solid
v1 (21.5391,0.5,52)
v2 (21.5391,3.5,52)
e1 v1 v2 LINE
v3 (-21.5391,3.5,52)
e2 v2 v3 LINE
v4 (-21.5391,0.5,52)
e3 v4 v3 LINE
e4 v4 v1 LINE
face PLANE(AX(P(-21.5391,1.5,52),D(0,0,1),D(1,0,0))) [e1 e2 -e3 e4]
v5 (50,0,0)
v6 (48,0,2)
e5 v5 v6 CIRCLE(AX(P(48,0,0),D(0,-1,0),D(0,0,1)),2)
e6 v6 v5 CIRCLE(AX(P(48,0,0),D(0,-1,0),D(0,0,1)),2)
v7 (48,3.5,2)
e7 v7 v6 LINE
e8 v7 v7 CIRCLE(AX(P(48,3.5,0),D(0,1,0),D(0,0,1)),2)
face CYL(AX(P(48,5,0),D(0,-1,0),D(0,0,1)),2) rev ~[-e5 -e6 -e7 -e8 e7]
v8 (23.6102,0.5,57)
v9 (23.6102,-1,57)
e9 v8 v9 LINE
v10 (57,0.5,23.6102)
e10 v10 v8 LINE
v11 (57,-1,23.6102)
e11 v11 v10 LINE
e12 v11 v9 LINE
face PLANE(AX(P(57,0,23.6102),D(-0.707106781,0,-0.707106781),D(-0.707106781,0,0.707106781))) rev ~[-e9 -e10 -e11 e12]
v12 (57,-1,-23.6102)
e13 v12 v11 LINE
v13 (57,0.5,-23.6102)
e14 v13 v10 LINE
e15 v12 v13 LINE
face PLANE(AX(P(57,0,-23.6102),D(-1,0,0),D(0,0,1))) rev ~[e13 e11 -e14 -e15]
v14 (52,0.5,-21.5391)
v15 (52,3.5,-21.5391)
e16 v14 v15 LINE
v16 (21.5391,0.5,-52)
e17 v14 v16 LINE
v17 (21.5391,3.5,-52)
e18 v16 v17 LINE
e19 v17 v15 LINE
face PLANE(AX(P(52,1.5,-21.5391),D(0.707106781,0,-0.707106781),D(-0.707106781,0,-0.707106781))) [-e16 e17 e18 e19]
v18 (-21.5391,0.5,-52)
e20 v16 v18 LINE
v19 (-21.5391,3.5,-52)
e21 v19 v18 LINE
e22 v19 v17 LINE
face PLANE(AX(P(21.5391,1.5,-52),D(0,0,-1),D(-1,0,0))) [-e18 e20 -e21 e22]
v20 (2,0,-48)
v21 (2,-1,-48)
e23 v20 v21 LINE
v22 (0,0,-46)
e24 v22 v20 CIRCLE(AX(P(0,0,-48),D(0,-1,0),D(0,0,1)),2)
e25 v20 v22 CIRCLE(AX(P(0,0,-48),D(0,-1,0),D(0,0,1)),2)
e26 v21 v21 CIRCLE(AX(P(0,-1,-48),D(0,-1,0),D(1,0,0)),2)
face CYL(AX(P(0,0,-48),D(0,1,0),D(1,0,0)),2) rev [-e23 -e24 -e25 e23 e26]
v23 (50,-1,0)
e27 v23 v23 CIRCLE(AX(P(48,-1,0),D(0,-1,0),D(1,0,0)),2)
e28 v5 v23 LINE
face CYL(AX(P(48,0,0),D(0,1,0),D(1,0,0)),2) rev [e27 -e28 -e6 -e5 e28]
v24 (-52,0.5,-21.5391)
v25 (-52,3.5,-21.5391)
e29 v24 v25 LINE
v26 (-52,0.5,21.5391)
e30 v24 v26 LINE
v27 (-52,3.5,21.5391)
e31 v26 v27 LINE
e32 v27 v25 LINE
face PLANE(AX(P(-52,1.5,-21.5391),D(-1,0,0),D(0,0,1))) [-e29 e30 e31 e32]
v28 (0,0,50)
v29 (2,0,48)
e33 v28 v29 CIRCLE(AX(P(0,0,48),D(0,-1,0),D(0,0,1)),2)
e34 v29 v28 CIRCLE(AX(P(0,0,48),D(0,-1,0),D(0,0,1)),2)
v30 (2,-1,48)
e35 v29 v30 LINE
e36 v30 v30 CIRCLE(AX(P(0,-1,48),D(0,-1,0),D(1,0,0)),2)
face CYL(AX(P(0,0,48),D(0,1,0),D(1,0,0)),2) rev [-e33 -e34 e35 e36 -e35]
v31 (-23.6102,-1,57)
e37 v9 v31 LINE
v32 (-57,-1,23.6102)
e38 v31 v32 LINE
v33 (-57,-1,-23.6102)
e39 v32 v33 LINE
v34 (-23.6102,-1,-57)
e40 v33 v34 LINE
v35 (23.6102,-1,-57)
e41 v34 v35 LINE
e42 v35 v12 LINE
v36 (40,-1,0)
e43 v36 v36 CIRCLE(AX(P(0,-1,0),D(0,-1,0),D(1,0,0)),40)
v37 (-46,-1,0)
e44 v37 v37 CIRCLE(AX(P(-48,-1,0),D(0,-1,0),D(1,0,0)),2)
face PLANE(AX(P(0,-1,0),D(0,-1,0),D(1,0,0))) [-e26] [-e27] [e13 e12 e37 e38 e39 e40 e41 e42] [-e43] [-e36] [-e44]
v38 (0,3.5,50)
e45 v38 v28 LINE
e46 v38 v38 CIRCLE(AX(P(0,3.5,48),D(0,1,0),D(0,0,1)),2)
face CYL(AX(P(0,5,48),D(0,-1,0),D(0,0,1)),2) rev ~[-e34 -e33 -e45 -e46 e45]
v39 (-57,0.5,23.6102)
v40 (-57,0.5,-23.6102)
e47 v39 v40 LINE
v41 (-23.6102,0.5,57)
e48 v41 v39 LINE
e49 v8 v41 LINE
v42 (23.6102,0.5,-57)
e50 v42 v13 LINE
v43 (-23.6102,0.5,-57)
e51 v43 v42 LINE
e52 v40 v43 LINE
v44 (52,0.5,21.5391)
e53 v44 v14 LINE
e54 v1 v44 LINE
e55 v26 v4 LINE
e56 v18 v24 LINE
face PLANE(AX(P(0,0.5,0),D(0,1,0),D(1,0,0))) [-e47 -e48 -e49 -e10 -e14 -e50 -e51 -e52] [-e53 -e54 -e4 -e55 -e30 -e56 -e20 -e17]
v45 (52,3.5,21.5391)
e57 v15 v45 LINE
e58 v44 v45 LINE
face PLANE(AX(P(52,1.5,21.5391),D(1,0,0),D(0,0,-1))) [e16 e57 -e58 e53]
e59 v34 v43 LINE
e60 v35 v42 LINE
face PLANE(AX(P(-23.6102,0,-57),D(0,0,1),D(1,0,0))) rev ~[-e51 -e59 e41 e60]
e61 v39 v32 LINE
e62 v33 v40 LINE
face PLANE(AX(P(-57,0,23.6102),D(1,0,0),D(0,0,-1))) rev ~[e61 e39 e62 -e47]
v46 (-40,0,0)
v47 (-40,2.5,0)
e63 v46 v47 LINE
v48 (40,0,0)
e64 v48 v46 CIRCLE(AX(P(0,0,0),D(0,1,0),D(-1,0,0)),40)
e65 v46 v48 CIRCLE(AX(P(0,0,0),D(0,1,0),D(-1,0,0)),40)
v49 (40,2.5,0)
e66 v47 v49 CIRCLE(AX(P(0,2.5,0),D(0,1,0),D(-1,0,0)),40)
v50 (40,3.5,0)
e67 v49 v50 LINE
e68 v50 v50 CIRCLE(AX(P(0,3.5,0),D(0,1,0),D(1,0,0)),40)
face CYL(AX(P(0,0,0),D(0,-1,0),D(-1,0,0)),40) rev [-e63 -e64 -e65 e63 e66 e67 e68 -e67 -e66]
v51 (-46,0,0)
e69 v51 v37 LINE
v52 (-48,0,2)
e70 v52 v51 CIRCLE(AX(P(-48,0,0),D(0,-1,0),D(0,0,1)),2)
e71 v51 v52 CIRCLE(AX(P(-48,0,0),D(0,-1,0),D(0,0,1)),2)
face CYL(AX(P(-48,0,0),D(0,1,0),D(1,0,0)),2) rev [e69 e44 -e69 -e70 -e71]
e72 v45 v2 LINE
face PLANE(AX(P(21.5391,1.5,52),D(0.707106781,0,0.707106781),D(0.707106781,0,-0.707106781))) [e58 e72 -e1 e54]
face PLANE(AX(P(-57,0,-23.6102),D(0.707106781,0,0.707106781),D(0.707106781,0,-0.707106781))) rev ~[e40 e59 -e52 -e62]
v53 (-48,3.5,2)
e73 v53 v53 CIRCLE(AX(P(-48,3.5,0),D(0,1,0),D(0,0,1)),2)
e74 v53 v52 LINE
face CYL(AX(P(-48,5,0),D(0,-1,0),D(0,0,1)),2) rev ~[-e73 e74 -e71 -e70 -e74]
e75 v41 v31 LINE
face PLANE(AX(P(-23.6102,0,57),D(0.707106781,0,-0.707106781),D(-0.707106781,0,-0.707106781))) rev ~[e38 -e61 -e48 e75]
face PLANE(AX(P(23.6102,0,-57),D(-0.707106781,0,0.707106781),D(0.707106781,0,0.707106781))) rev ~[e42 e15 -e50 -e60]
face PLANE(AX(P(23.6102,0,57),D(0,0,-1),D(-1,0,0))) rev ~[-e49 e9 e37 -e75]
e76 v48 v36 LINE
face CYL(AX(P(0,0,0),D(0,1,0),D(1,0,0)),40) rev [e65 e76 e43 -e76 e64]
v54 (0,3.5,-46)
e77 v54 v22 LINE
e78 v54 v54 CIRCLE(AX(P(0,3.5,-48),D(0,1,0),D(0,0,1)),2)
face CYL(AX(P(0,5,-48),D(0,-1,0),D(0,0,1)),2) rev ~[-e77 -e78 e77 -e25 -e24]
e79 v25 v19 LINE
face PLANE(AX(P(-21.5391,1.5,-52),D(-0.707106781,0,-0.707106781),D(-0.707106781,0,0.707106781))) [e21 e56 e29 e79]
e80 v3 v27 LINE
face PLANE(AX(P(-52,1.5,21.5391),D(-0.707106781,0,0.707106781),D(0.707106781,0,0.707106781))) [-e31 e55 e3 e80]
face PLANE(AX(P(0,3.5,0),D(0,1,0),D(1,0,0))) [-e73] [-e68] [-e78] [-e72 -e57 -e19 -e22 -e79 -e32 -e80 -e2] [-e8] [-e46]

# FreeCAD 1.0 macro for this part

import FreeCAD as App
import Part
import Sketcher

V = App.Vector

doc = App.newDocument("Part")
body = doc.addObject("PartDesign::Body", "Body")

sketch1 = body.newObject("Sketcher::SketchObject", "Sketch")
sketch1.AttachmentSupport = (doc.getObject("XZ_Plane"), [""])
sketch1.MapMode = "FlatFace"
sketch1.addGeometry(Part.LineSegment(V(-23.6102, 57, 0), V(23.6102, 57, 0)), False)
sketch1.addGeometry(Part.LineSegment(V(23.6102, 57, 0), V(57, 23.6102, 0)), False)
sketch1.addGeometry(Part.LineSegment(V(57, 23.6102, 0), V(57, -23.6102, 0)), False)
sketch1.addGeometry(Part.LineSegment(V(57, -23.6102, 0), V(23.6102, -57, 0)), False)
sketch1.addGeometry(Part.LineSegment(V(23.6102, -57, 0), V(-23.6102, -57, 0)), False)
sketch1.addGeometry(Part.LineSegment(V(-23.6102, -57, 0), V(-57, -23.6102, 0)), False)
sketch1.addGeometry(Part.LineSegment(V(-57, -23.6102, 0), V(-57, 23.6102, 0)), False)
sketch1.addGeometry(Part.LineSegment(V(-57, 23.6102, 0), V(-23.6102, 57, 0)), False)
sketch1.addGeometry(Part.Circle(V(0, 0, 0), V(0, 0, 1), 40), False)
sketch1.addConstraint(Sketcher.Constraint("Coincident", 0, 2, 1, 1))
sketch1.addConstraint(Sketcher.Constraint("Coincident", 1, 2, 2, 1))
sketch1.addConstraint(Sketcher.Constraint("Coincident", 2, 2, 3, 1))
sketch1.addConstraint(Sketcher.Constraint("Coincident", 3, 2, 4, 1))
sketch1.addConstraint(Sketcher.Constraint("Coincident", 4, 2, 5, 1))
sketch1.addConstraint(Sketcher.Constraint("Coincident", 5, 2, 6, 1))
sketch1.addConstraint(Sketcher.Constraint("Coincident", 6, 2, 7, 1))
sketch1.addConstraint(Sketcher.Constraint("Coincident", 7, 2, 0, 1))
sketch1.addConstraint(Sketcher.Constraint("Horizontal", 0))
sketch1.addConstraint(Sketcher.Constraint("Vertical", 2))
sketch1.addConstraint(Sketcher.Constraint("Horizontal", 4))
sketch1.addConstraint(Sketcher.Constraint("Vertical", 6))
sketch1.addConstraint(Sketcher.Constraint("Coincident", 8, 3, -1, 1))
sketch1.addConstraint(Sketcher.Constraint("Symmetric", 0, 2, 4, 2, -1, 1))
sketch1.addConstraint(Sketcher.Constraint("Symmetric", 1, 2, 5, 2, -1, 1))
sketch1.addConstraint(Sketcher.Constraint("Perpendicular", 1, 3))
sketch1.addConstraint(Sketcher.Constraint("Perpendicular", 5, 7))
sketch1.addConstraint(Sketcher.Constraint("Horizontal", 2, 2, 5, 2))
sketch1.addConstraint(Sketcher.Constraint("Horizontal", 1, 2, 6, 2))
sketch1.addConstraint(Sketcher.Constraint("Vertical", 0, 2, 3, 2))
sketch1.addConstraint(Sketcher.Constraint("Equal", 4, 2))
sketch1.addConstraint(Sketcher.Constraint("Diameter", 8, 80.0))
sketch1.addConstraint(Sketcher.Constraint("DistanceY", 3, 2, 0, 2, 114.0))
sketch1.addConstraint(Sketcher.Constraint("DistanceX", 0, 1, 0, 2, 47.2204))
pad1 = body.newObject("PartDesign::Pad", "Pad")
pad1.Profile = sketch1
pad1.Length = 2.5
pad1.Reversed = True

sketch2 = body.newObject("Sketcher::SketchObject", "Sketch001")
sketch2.AttachmentSupport = (doc.getObject("XZ_Plane"), [""])
sketch2.MapMode = "FlatFace"
sketch2.AttachmentOffset = App.Placement(V(0, 0, -2.5), App.Rotation())
sketch2.addGeometry(Part.LineSegment(V(-21.5391, -52, 0), V(-52, -21.5391, 0)), False)
sketch2.addGeometry(Part.LineSegment(V(-52, -21.5391, 0), V(-52, 21.5391, 0)), False)
sketch2.addGeometry(Part.LineSegment(V(-52, 21.5391, 0), V(-21.5391, 52, 0)), False)
sketch2.addGeometry(Part.LineSegment(V(-21.5391, 52, 0), V(21.5391, 52, 0)), False)
sketch2.addGeometry(Part.LineSegment(V(21.5391, 52, 0), V(52, 21.5391, 0)), False)
sketch2.addGeometry(Part.LineSegment(V(52, 21.5391, 0), V(52, -21.5391, 0)), False)
sketch2.addGeometry(Part.LineSegment(V(52, -21.5391, 0), V(21.5391, -52, 0)), False)
sketch2.addGeometry(Part.LineSegment(V(21.5391, -52, 0), V(-21.5391, -52, 0)), False)
sketch2.addGeometry(Part.Circle(V(0, 0, 0), V(0, 0, 1), 40), False)
sketch2.addConstraint(Sketcher.Constraint("Coincident", 0, 2, 1, 1))
sketch2.addConstraint(Sketcher.Constraint("Coincident", 1, 2, 2, 1))
sketch2.addConstraint(Sketcher.Constraint("Coincident", 2, 2, 3, 1))
sketch2.addConstraint(Sketcher.Constraint("Coincident", 3, 2, 4, 1))
sketch2.addConstraint(Sketcher.Constraint("Coincident", 4, 2, 5, 1))
sketch2.addConstraint(Sketcher.Constraint("Coincident", 5, 2, 6, 1))
sketch2.addConstraint(Sketcher.Constraint("Coincident", 6, 2, 7, 1))
sketch2.addConstraint(Sketcher.Constraint("Coincident", 7, 2, 0, 1))
sketch2.addConstraint(Sketcher.Constraint("Vertical", 1))
sketch2.addConstraint(Sketcher.Constraint("Horizontal", 3))
sketch2.addConstraint(Sketcher.Constraint("Vertical", 5))
sketch2.addConstraint(Sketcher.Constraint("Horizontal", 7))
sketch2.addConstraint(Sketcher.Constraint("Coincident", 8, 3, -1, 1))
sketch2.addConstraint(Sketcher.Constraint("Symmetric", 0, 2, 4, 2, -1, 1))
sketch2.addConstraint(Sketcher.Constraint("Symmetric", 2, 2, 6, 2, -1, 1))
sketch2.addConstraint(Sketcher.Constraint("Perpendicular", 0, 2))
sketch2.addConstraint(Sketcher.Constraint("Perpendicular", 2, 4))
sketch2.addConstraint(Sketcher.Constraint("Perpendicular", 4, 6))
sketch2.addConstraint(Sketcher.Constraint("Horizontal", 1, 2, 4, 2))
sketch2.addConstraint(Sketcher.Constraint("Vertical", 3, 2, 6, 2))
sketch2.addConstraint(Sketcher.Constraint("Equal", 7, 1))
sketch2.addConstraint(Sketcher.Constraint("Diameter", 8, 80.0))
sketch2.addConstraint(Sketcher.Constraint("DistanceX", 0, 2, -1, 1, 52.0))
sketch2.addConstraint(Sketcher.Constraint("DistanceX", 3, 1, 3, 2, 43.0782))
pad2 = body.newObject("PartDesign::Pad", "Pad001")
pad2.Profile = sketch2
pad2.Length = 2.5
pad2.Reversed = True

sketch3 = body.newObject("Sketcher::SketchObject", "Sketch002")
sketch3.AttachmentSupport = (doc.getObject("XZ_Plane"), [""])
sketch3.MapMode = "FlatFace"
sketch3.AttachmentOffset = App.Placement(V(0, 0, -5), App.Rotation())
sketch3.addGeometry(Part.Circle(V(0, -48, 0), V(0, 0, 1), 2), False)
sketch3.addGeometry(Part.Circle(V(-48, 0, 0), V(0, 0, 1), 2), False)
sketch3.addGeometry(Part.Circle(V(0, 48, 0), V(0, 0, 1), 2), False)
sketch3.addGeometry(Part.Circle(V(48, 0, 0), V(0, 0, 1), 2), False)
sketch3.addConstraint(Sketcher.Constraint("Equal", 0, 1))
sketch3.addConstraint(Sketcher.Constraint("Equal", 1, 2))
sketch3.addConstraint(Sketcher.Constraint("Equal", 2, 3))
sketch3.addConstraint(Sketcher.Constraint("Symmetric", 0, 3, 2, 3, -1, 1))
sketch3.addConstraint(Sketcher.Constraint("Symmetric", 1, 3, 3, 3, -1, 1))
sketch3.addConstraint(Sketcher.Constraint("PointOnObject", 0, 3, -2))
sketch3.addConstraint(Sketcher.Constraint("PointOnObject", 1, 3, -1))
sketch3.addConstraint(Sketcher.Constraint("Diameter", 0, 4.0))
sketch3.addConstraint(Sketcher.Constraint("DistanceY", 0, 3, -1, 1, 48.0))
sketch3.addConstraint(Sketcher.Constraint("DistanceX", 1, 3, -1, 1, 48.0))
doc.recompute()
hole = body.newObject("PartDesign::Hole", "Hole")
hole.Profile = sketch3
hole.ThreadType = "None"
hole.Diameter = 4
hole.DepthType = "ThroughAll"
hole.Reversed = True

sketch4 = body.newObject("Sketcher::SketchObject", "Sketch003")
sketch4.AttachmentSupport = (doc.getObject("XZ_Plane"), [""])
sketch4.MapMode = "FlatFace"
sketch4.AttachmentOffset = App.Placement(V(0, 0, -2.5), App.Rotation())
sketch4.addGeometry(Part.LineSegment(V(-57, 23.6102, 0), V(-23.6102, 57, 0)), False)
sketch4.addGeometry(Part.LineSegment(V(-23.6102, 57, 0), V(23.6102, 57, 0)), False)
sketch4.addGeometry(Part.LineSegment(V(23.6102, 57, 0), V(57, 23.6102, 0)), False)
sketch4.addGeometry(Part.LineSegment(V(57, 23.6102, 0), V(57, -23.6102, 0)), False)
sketch4.addGeometry(Part.LineSegment(V(57, -23.6102, 0), V(23.6102, -57, 0)), False)
sketch4.addGeometry(Part.LineSegment(V(23.6102, -57, 0), V(-23.6102, -57, 0)), False)
sketch4.addGeometry(Part.LineSegment(V(-23.6102, -57, 0), V(-57, -23.6102, 0)), False)
sketch4.addGeometry(Part.LineSegment(V(-57, -23.6102, 0), V(-57, 23.6102, 0)), False)
sketch4.addGeometry(Part.LineSegment(V(-52, -21.5391, 0), V(-21.5391, -52, 0)), False)
sketch4.addGeometry(Part.LineSegment(V(-21.5391, -52, 0), V(21.5391, -52, 0)), False)
sketch4.addGeometry(Part.LineSegment(V(21.5391, -52, 0), V(52, -21.5391, 0)), False)
sketch4.addGeometry(Part.LineSegment(V(52, -21.5391, 0), V(52, 21.5391, 0)), False)
sketch4.addGeometry(Part.LineSegment(V(52, 21.5391, 0), V(21.5391, 52, 0)), False)
sketch4.addGeometry(Part.LineSegment(V(21.5391, 52, 0), V(-21.5391, 52, 0)), False)
sketch4.addGeometry(Part.LineSegment(V(-21.5391, 52, 0), V(-52, 21.5391, 0)), False)
sketch4.addGeometry(Part.LineSegment(V(-52, 21.5391, 0), V(-52, -21.5391, 0)), False)
sketch4.addConstraint(Sketcher.Constraint("Coincident", 0, 2, 1, 1))
sketch4.addConstraint(Sketcher.Constraint("Coincident", 1, 2, 2, 1))
sketch4.addConstraint(Sketcher.Constraint("Coincident", 2, 2, 3, 1))
sketch4.addConstraint(Sketcher.Constraint("Coincident", 3, 2, 4, 1))
sketch4.addConstraint(Sketcher.Constraint("Coincident", 4, 2, 5, 1))
sketch4.addConstraint(Sketcher.Constraint("Coincident", 5, 2, 6, 1))
sketch4.addConstraint(Sketcher.Constraint("Coincident", 6, 2, 7, 1))
sketch4.addConstraint(Sketcher.Constraint("Coincident", 7, 2, 0, 1))
sketch4.addConstraint(Sketcher.Constraint("Coincident", 8, 2, 9, 1))
sketch4.addConstraint(Sketcher.Constraint("Coincident", 9, 2, 10, 1))
sketch4.addConstraint(Sketcher.Constraint("Coincident", 10, 2, 11, 1))
sketch4.addConstraint(Sketcher.Constraint("Coincident", 11, 2, 12, 1))
sketch4.addConstraint(Sketcher.Constraint("Coincident", 12, 2, 13, 1))
sketch4.addConstraint(Sketcher.Constraint("Coincident", 13, 2, 14, 1))
sketch4.addConstraint(Sketcher.Constraint("Coincident", 14, 2, 15, 1))
sketch4.addConstraint(Sketcher.Constraint("Coincident", 15, 2, 8, 1))
sketch4.addConstraint(Sketcher.Constraint("Horizontal", 1))
sketch4.addConstraint(Sketcher.Constraint("Vertical", 3))
sketch4.addConstraint(Sketcher.Constraint("Horizontal", 5))
sketch4.addConstraint(Sketcher.Constraint("Vertical", 7))
sketch4.addConstraint(Sketcher.Constraint("Horizontal", 9))
sketch4.addConstraint(Sketcher.Constraint("Vertical", 11))
sketch4.addConstraint(Sketcher.Constraint("Horizontal", 13))
sketch4.addConstraint(Sketcher.Constraint("Vertical", 15))
sketch4.addConstraint(Sketcher.Constraint("Symmetric", 0, 2, 4, 2, -1, 1))
sketch4.addConstraint(Sketcher.Constraint("Symmetric", 2, 2, 6, 2, -1, 1))
sketch4.addConstraint(Sketcher.Constraint("Symmetric", 8, 2, 12, 2, -1, 1))
sketch4.addConstraint(Sketcher.Constraint("Symmetric", 10, 2, 14, 2, -1, 1))
sketch4.addConstraint(Sketcher.Constraint("Perpendicular", 0, 2))
sketch4.addConstraint(Sketcher.Constraint("Perpendicular", 2, 4))
sketch4.addConstraint(Sketcher.Constraint("Perpendicular", 4, 6))
sketch4.addConstraint(Sketcher.Constraint("Parallel", 6, 8))
sketch4.addConstraint(Sketcher.Constraint("Perpendicular", 8, 10))
sketch4.addConstraint(Sketcher.Constraint("Perpendicular", 10, 12))
sketch4.addConstraint(Sketcher.Constraint("Perpendicular", 12, 14))
sketch4.addConstraint(Sketcher.Constraint("Horizontal", 3, 2, 6, 2))
sketch4.addConstraint(Sketcher.Constraint("Horizontal", 11, 2, 14, 2))
sketch4.addConstraint(Sketcher.Constraint("Vertical", 1, 2, 4, 2))
sketch4.addConstraint(Sketcher.Constraint("Equal", 5, 3))
sketch4.addConstraint(Sketcher.Constraint("Equal", 13, 11))
sketch4.addConstraint(Sketcher.Constraint("DistanceY", -1, 1, 0, 2, 57.0))
sketch4.addConstraint(Sketcher.Constraint("DistanceY", 8, 2, -1, 1, 52.0))
sketch4.addConstraint(Sketcher.Constraint("DistanceX", 1, 1, 1, 2, 47.2204))
sketch4.addConstraint(Sketcher.Constraint("DistanceX", 9, 1, 9, 2, 43.0782))
pocket1 = body.newObject("PartDesign::Pocket", "Pocket")
pocket1.Profile = sketch4
pocket1.Length = 1
pocket1.Reversed = True

sketch5 = body.newObject("Sketcher::SketchObject", "Sketch004")
sketch5.AttachmentSupport = (doc.getObject("XZ_Plane"), [""])
sketch5.MapMode = "FlatFace"
sketch5.addGeometry(Part.LineSegment(V(57, 23.6102, 0), V(23.6102, 57, 0)), False)
sketch5.addGeometry(Part.LineSegment(V(23.6102, 57, 0), V(-23.6102, 57, 0)), False)
sketch5.addGeometry(Part.LineSegment(V(-23.6102, 57, 0), V(-57, 23.6102, 0)), False)
sketch5.addGeometry(Part.LineSegment(V(-57, 23.6102, 0), V(-57, -23.6102, 0)), False)
sketch5.addGeometry(Part.LineSegment(V(-57, -23.6102, 0), V(-23.6102, -57, 0)), False)
sketch5.addGeometry(Part.LineSegment(V(-23.6102, -57, 0), V(23.6102, -57, 0)), False)
sketch5.addGeometry(Part.LineSegment(V(23.6102, -57, 0), V(57, -23.6102, 0)), False)
sketch5.addGeometry(Part.LineSegment(V(57, -23.6102, 0), V(57, 23.6102, 0)), False)
sketch5.addGeometry(Part.Circle(V(0, -48, 0), V(0, 0, 1), 2), False)
sketch5.addGeometry(Part.Circle(V(-48, 0, 0), V(0, 0, 1), 2), False)
sketch5.addGeometry(Part.Circle(V(0, 0, 0), V(0, 0, 1), 40), False)
sketch5.addGeometry(Part.Circle(V(48, 0, 0), V(0, 0, 1), 2), False)
sketch5.addGeometry(Part.Circle(V(0, 48, 0), V(0, 0, 1), 2), False)
sketch5.addConstraint(Sketcher.Constraint("Coincident", 0, 2, 1, 1))
sketch5.addConstraint(Sketcher.Constraint("Coincident", 1, 2, 2, 1))
sketch5.addConstraint(Sketcher.Constraint("Coincident", 2, 2, 3, 1))
sketch5.addConstraint(Sketcher.Constraint("Coincident", 3, 2, 4, 1))
sketch5.addConstraint(Sketcher.Constraint("Coincident", 4, 2, 5, 1))
sketch5.addConstraint(Sketcher.Constraint("Coincident", 5, 2, 6, 1))
sketch5.addConstraint(Sketcher.Constraint("Coincident", 6, 2, 7, 1))
sketch5.addConstraint(Sketcher.Constraint("Coincident", 7, 2, 0, 1))
sketch5.addConstraint(Sketcher.Constraint("Horizontal", 1))
sketch5.addConstraint(Sketcher.Constraint("Vertical", 3))
sketch5.addConstraint(Sketcher.Constraint("Horizontal", 5))
sketch5.addConstraint(Sketcher.Constraint("Vertical", 7))
sketch5.addConstraint(Sketcher.Constraint("Coincident", 10, 3, -1, 1))
sketch5.addConstraint(Sketcher.Constraint("Equal", 8, 9))
sketch5.addConstraint(Sketcher.Constraint("Equal", 9, 11))
sketch5.addConstraint(Sketcher.Constraint("Equal", 11, 12))
sketch5.addConstraint(Sketcher.Constraint("Symmetric", 9, 3, 11, 3, -1, 1))
sketch5.addConstraint(Sketcher.Constraint("Symmetric", 8, 3, 12, 3, -1, 1))
sketch5.addConstraint(Sketcher.Constraint("Symmetric", 0, 2, 4, 2, -1, 1))
sketch5.addConstraint(Sketcher.Constraint("Symmetric", 2, 2, 6, 2, -1, 1))
sketch5.addConstraint(Sketcher.Constraint("PointOnObject", 8, 3, -2))
sketch5.addConstraint(Sketcher.Constraint("PointOnObject", 9, 3, -1))
sketch5.addConstraint(Sketcher.Constraint("Perpendicular", 0, 2))
sketch5.addConstraint(Sketcher.Constraint("Perpendicular", 2, 4))
sketch5.addConstraint(Sketcher.Constraint("Perpendicular", 4, 6))
sketch5.addConstraint(Sketcher.Constraint("Horizontal", 3, 2, 6, 2))
sketch5.addConstraint(Sketcher.Constraint("Vertical", 1, 2, 4, 2))
sketch5.addConstraint(Sketcher.Constraint("Equal", 5, 3))
sketch5.addConstraint(Sketcher.Constraint("Diameter", 8, 4.0))
sketch5.addConstraint(Sketcher.Constraint("Diameter", 10, 80.0))
sketch5.addConstraint(Sketcher.Constraint("DistanceY", 8, 3, -1, 1, 48.0))
sketch5.addConstraint(Sketcher.Constraint("DistanceX", 9, 3, -1, 1, 48.0))
sketch5.addConstraint(Sketcher.Constraint("DistanceY", -1, 1, 0, 2, 57.0))
sketch5.addConstraint(Sketcher.Constraint("DistanceX", 1, 2, 1, 1, 47.2204))
pad3 = body.newObject("PartDesign::Pad", "Pad002")
pad3.Profile = sketch5
pad3.Length = 1

sketch6 = body.newObject("Sketcher::SketchObject", "Sketch005")
sketch6.AttachmentSupport = (doc.getObject("XZ_Plane"), [""])
sketch6.MapMode = "FlatFace"
sketch6.AttachmentOffset = App.Placement(V(0, 0, -5), App.Rotation())
sketch6.addGeometry(Part.LineSegment(V(21.5391, -52, 0), V(-21.5391, -52, 0)), False)
sketch6.addGeometry(Part.LineSegment(V(-21.5391, -52, 0), V(-52, -21.5391, 0)), False)
sketch6.addGeometry(Part.LineSegment(V(-52, -21.5391, 0), V(-52, 21.5391, 0)), False)
sketch6.addGeometry(Part.LineSegment(V(-52, 21.5391, 0), V(-21.5391, 52, 0)), False)
sketch6.addGeometry(Part.LineSegment(V(-21.5391, 52, 0), V(21.5391, 52, 0)), False)
sketch6.addGeometry(Part.LineSegment(V(21.5391, 52, 0), V(52, 21.5391, 0)), False)
sketch6.addGeometry(Part.LineSegment(V(52, 21.5391, 0), V(52, -21.5391, 0)), False)
sketch6.addGeometry(Part.LineSegment(V(52, -21.5391, 0), V(21.5391, -52, 0)), False)
sketch6.addGeometry(Part.Circle(V(0, 0, 0), V(0, 0, 1), 40), False)
sketch6.addConstraint(Sketcher.Constraint("Coincident", 0, 2, 1, 1))
sketch6.addConstraint(Sketcher.Constraint("Coincident", 1, 2, 2, 1))
sketch6.addConstraint(Sketcher.Constraint("Coincident", 2, 2, 3, 1))
sketch6.addConstraint(Sketcher.Constraint("Coincident", 3, 2, 4, 1))
sketch6.addConstraint(Sketcher.Constraint("Coincident", 4, 2, 5, 1))
sketch6.addConstraint(Sketcher.Constraint("Coincident", 5, 2, 6, 1))
sketch6.addConstraint(Sketcher.Constraint("Coincident", 6, 2, 7, 1))
sketch6.addConstraint(Sketcher.Constraint("Coincident", 7, 2, 0, 1))
sketch6.addConstraint(Sketcher.Constraint("Horizontal", 0))
sketch6.addConstraint(Sketcher.Constraint("Vertical", 2))
sketch6.addConstraint(Sketcher.Constraint("Horizontal", 4))
sketch6.addConstraint(Sketcher.Constraint("Vertical", 6))
sketch6.addConstraint(Sketcher.Constraint("Coincident", 8, 3, -1, 1))
sketch6.addConstraint(Sketcher.Constraint("Symmetric", 0, 2, 4, 2, -1, 1))
sketch6.addConstraint(Sketcher.Constraint("Symmetric", 1, 2, 5, 2, -1, 1))
sketch6.addConstraint(Sketcher.Constraint("Perpendicular", 1, 3))
sketch6.addConstraint(Sketcher.Constraint("Perpendicular", 5, 7))
sketch6.addConstraint(Sketcher.Constraint("Horizontal", 2, 2, 5, 2))
sketch6.addConstraint(Sketcher.Constraint("Horizontal", 1, 2, 6, 2))
sketch6.addConstraint(Sketcher.Constraint("Vertical", 0, 2, 3, 2))
sketch6.addConstraint(Sketcher.Constraint("Equal", 4, 2))
sketch6.addConstraint(Sketcher.Constraint("Diameter", 8, 80.0))
sketch6.addConstraint(Sketcher.Constraint("DistanceY", 0, 2, -1, 1, 52.0))
sketch6.addConstraint(Sketcher.Constraint("DistanceX", 0, 2, 0, 1, 43.0782))
pocket2 = body.newObject("PartDesign::Pocket", "Pocket001")
pocket2.Profile = sketch6
pocket2.Length = 0.5
pocket2.Reversed = True

sketch7 = body.newObject("Sketcher::SketchObject", "Sketch006")
sketch7.AttachmentSupport = (doc.getObject("XZ_Plane"), [""])
sketch7.MapMode = "FlatFace"
sketch7.AttachmentOffset = App.Placement(V(0, 0, -4.5), App.Rotation())
sketch7.addGeometry(Part.LineSegment(V(-21.5391, -52, 0), V(-52, -21.5391, 0)), False)
sketch7.addGeometry(Part.LineSegment(V(-52, -21.5391, 0), V(-52, 21.5391, 0)), False)
sketch7.addGeometry(Part.LineSegment(V(-52, 21.5391, 0), V(-21.5391, 52, 0)), False)
sketch7.addGeometry(Part.LineSegment(V(-21.5391, 52, 0), V(21.5391, 52, 0)), False)
sketch7.addGeometry(Part.LineSegment(V(21.5391, 52, 0), V(52, 21.5391, 0)), False)
sketch7.addGeometry(Part.LineSegment(V(52, 21.5391, 0), V(52, -21.5391, 0)), False)
sketch7.addGeometry(Part.LineSegment(V(52, -21.5391, 0), V(21.5391, -52, 0)), False)
sketch7.addGeometry(Part.LineSegment(V(21.5391, -52, 0), V(-21.5391, -52, 0)), False)
sketch7.addGeometry(Part.Circle(V(0, 48, 0), V(0, 0, 1), 2), False)
sketch7.addGeometry(Part.Circle(V(-48, 0, 0), V(0, 0, 1), 2), False)
sketch7.addGeometry(Part.Circle(V(0, 0, 0), V(0, 0, 1), 40), False)
sketch7.addGeometry(Part.Circle(V(48, 0, 0), V(0, 0, 1), 2), False)
sketch7.addGeometry(Part.Circle(V(0, -48, 0), V(0, 0, 1), 2), False)
sketch7.addConstraint(Sketcher.Constraint("Coincident", 0, 2, 1, 1))
sketch7.addConstraint(Sketcher.Constraint("Coincident", 1, 2, 2, 1))
sketch7.addConstraint(Sketcher.Constraint("Coincident", 2, 2, 3, 1))
sketch7.addConstraint(Sketcher.Constraint("Coincident", 3, 2, 4, 1))
sketch7.addConstraint(Sketcher.Constraint("Coincident", 4, 2, 5, 1))
sketch7.addConstraint(Sketcher.Constraint("Coincident", 5, 2, 6, 1))
sketch7.addConstraint(Sketcher.Constraint("Coincident", 6, 2, 7, 1))
sketch7.addConstraint(Sketcher.Constraint("Coincident", 7, 2, 0, 1))
sketch7.addConstraint(Sketcher.Constraint("Vertical", 1))
sketch7.addConstraint(Sketcher.Constraint("Horizontal", 3))
sketch7.addConstraint(Sketcher.Constraint("Vertical", 5))
sketch7.addConstraint(Sketcher.Constraint("Horizontal", 7))
sketch7.addConstraint(Sketcher.Constraint("Coincident", 10, 3, -1, 1))
sketch7.addConstraint(Sketcher.Constraint("Equal", 8, 9))
sketch7.addConstraint(Sketcher.Constraint("Equal", 9, 11))
sketch7.addConstraint(Sketcher.Constraint("Equal", 11, 12))
sketch7.addConstraint(Sketcher.Constraint("Symmetric", 9, 3, 11, 3, -1, 1))
sketch7.addConstraint(Sketcher.Constraint("Symmetric", 8, 3, 12, 3, -1, 1))
sketch7.addConstraint(Sketcher.Constraint("Symmetric", 0, 2, 4, 2, -1, 1))
sketch7.addConstraint(Sketcher.Constraint("Symmetric", 2, 2, 6, 2, -1, 1))
sketch7.addConstraint(Sketcher.Constraint("PointOnObject", 8, 3, -2))
sketch7.addConstraint(Sketcher.Constraint("PointOnObject", 9, 3, -1))
sketch7.addConstraint(Sketcher.Constraint("Perpendicular", 0, 2))
sketch7.addConstraint(Sketcher.Constraint("Perpendicular", 2, 4))
sketch7.addConstraint(Sketcher.Constraint("Perpendicular", 4, 6))
sketch7.addConstraint(Sketcher.Constraint("Horizontal", 1, 2, 4, 2))
sketch7.addConstraint(Sketcher.Constraint("Vertical", 3, 2, 6, 2))
sketch7.addConstraint(Sketcher.Constraint("Equal", 7, 1))
sketch7.addConstraint(Sketcher.Constraint("Diameter", 8, 4.0))
sketch7.addConstraint(Sketcher.Constraint("Diameter", 10, 80.0))
sketch7.addConstraint(Sketcher.Constraint("DistanceY", -1, 1, 8, 3, 48.0))
sketch7.addConstraint(Sketcher.Constraint("DistanceX", 9, 3, -1, 1, 48.0))
sketch7.addConstraint(Sketcher.Constraint("DistanceX", 0, 2, -1, 1, 52.0))
sketch7.addConstraint(Sketcher.Constraint("DistanceX", 3, 1, 3, 2, 43.0782))
pocket3 = body.newObject("PartDesign::Pocket", "Pocket002")
pocket3.Profile = sketch7
pocket3.Length = 1
pocket3.Reversed = True

sketch8 = body.newObject("Sketcher::SketchObject", "Sketch007")
sketch8.AttachmentSupport = (doc.getObject("XZ_Plane"), [""])
sketch8.MapMode = "FlatFace"
sketch8.AttachmentOffset = App.Placement(V(0, 0, -1.5), App.Rotation())
sketch8.addGeometry(Part.LineSegment(V(-23.6102, 57, 0), V(23.6102, 57, 0)), False)
sketch8.addGeometry(Part.LineSegment(V(23.6102, 57, 0), V(57, 23.6102, 0)), False)
sketch8.addGeometry(Part.LineSegment(V(57, 23.6102, 0), V(57, -23.6102, 0)), False)
sketch8.addGeometry(Part.LineSegment(V(57, -23.6102, 0), V(23.6102, -57, 0)), False)
sketch8.addGeometry(Part.LineSegment(V(23.6102, -57, 0), V(-23.6102, -57, 0)), False)
sketch8.addGeometry(Part.LineSegment(V(-23.6102, -57, 0), V(-57, -23.6102, 0)), False)
sketch8.addGeometry(Part.LineSegment(V(-57, -23.6102, 0), V(-57, 23.6102, 0)), False)
sketch8.addGeometry(Part.LineSegment(V(-57, 23.6102, 0), V(-23.6102, 57, 0)), False)
sketch8.addGeometry(Part.LineSegment(V(-52, -21.5391, 0), V(-21.5391, -52, 0)), False)
sketch8.addGeometry(Part.LineSegment(V(-21.5391, -52, 0), V(21.5391, -52, 0)), False)
sketch8.addGeometry(Part.LineSegment(V(21.5391, -52, 0), V(52, -21.5391, 0)), False)
sketch8.addGeometry(Part.LineSegment(V(52, -21.5391, 0), V(52, 21.5391, 0)), False)
sketch8.addGeometry(Part.LineSegment(V(52, 21.5391, 0), V(21.5391, 52, 0)), False)
sketch8.addGeometry(Part.LineSegment(V(21.5391, 52, 0), V(-21.5391, 52, 0)), False)
sketch8.addGeometry(Part.LineSegment(V(-21.5391, 52, 0), V(-52, 21.5391, 0)), False)
sketch8.addGeometry(Part.LineSegment(V(-52, 21.5391, 0), V(-52, -21.5391, 0)), False)
sketch8.addConstraint(Sketcher.Constraint("Coincident", 0, 2, 1, 1))
sketch8.addConstraint(Sketcher.Constraint("Coincident", 1, 2, 2, 1))
sketch8.addConstraint(Sketcher.Constraint("Coincident", 2, 2, 3, 1))
sketch8.addConstraint(Sketcher.Constraint("Coincident", 3, 2, 4, 1))
sketch8.addConstraint(Sketcher.Constraint("Coincident", 4, 2, 5, 1))
sketch8.addConstraint(Sketcher.Constraint("Coincident", 5, 2, 6, 1))
sketch8.addConstraint(Sketcher.Constraint("Coincident", 6, 2, 7, 1))
sketch8.addConstraint(Sketcher.Constraint("Coincident", 7, 2, 0, 1))
sketch8.addConstraint(Sketcher.Constraint("Coincident", 8, 2, 9, 1))
sketch8.addConstraint(Sketcher.Constraint("Coincident", 9, 2, 10, 1))
sketch8.addConstraint(Sketcher.Constraint("Coincident", 10, 2, 11, 1))
sketch8.addConstraint(Sketcher.Constraint("Coincident", 11, 2, 12, 1))
sketch8.addConstraint(Sketcher.Constraint("Coincident", 12, 2, 13, 1))
sketch8.addConstraint(Sketcher.Constraint("Coincident", 13, 2, 14, 1))
sketch8.addConstraint(Sketcher.Constraint("Coincident", 14, 2, 15, 1))
sketch8.addConstraint(Sketcher.Constraint("Coincident", 15, 2, 8, 1))
sketch8.addConstraint(Sketcher.Constraint("Horizontal", 0))
sketch8.addConstraint(Sketcher.Constraint("Vertical", 2))
sketch8.addConstraint(Sketcher.Constraint("Horizontal", 4))
sketch8.addConstraint(Sketcher.Constraint("Vertical", 6))
sketch8.addConstraint(Sketcher.Constraint("Horizontal", 9))
sketch8.addConstraint(Sketcher.Constraint("Vertical", 11))
sketch8.addConstraint(Sketcher.Constraint("Horizontal", 13))
sketch8.addConstraint(Sketcher.Constraint("Vertical", 15))
sketch8.addConstraint(Sketcher.Constraint("Symmetric", 0, 2, 4, 2, -1, 1))
sketch8.addConstraint(Sketcher.Constraint("Symmetric", 1, 2, 5, 2, -1, 1))
sketch8.addConstraint(Sketcher.Constraint("Symmetric", 8, 2, 12, 2, -1, 1))
sketch8.addConstraint(Sketcher.Constraint("Symmetric", 10, 2, 14, 2, -1, 1))
sketch8.addConstraint(Sketcher.Constraint("Perpendicular", 1, 3))
sketch8.addConstraint(Sketcher.Constraint("Perpendicular", 5, 7))
sketch8.addConstraint(Sketcher.Constraint("Perpendicular", 7, 8))
sketch8.addConstraint(Sketcher.Constraint("Perpendicular", 8, 10))
sketch8.addConstraint(Sketcher.Constraint("Perpendicular", 10, 12))
sketch8.addConstraint(Sketcher.Constraint("Perpendicular", 12, 14))
sketch8.addConstraint(Sketcher.Constraint("Horizontal", 2, 2, 5, 2))
sketch8.addConstraint(Sketcher.Constraint("Horizontal", 1, 2, 6, 2))
sketch8.addConstraint(Sketcher.Constraint("Horizontal", 11, 2, 14, 2))
sketch8.addConstraint(Sketcher.Constraint("Vertical", 0, 2, 3, 2))
sketch8.addConstraint(Sketcher.Constraint("Equal", 4, 2))
sketch8.addConstraint(Sketcher.Constraint("Equal", 13, 11))
sketch8.addConstraint(Sketcher.Constraint("DistanceY", -1, 1, 0, 2, 57.0))
sketch8.addConstraint(Sketcher.Constraint("DistanceY", 8, 2, -1, 1, 52.0))
sketch8.addConstraint(Sketcher.Constraint("DistanceX", 0, 1, 0, 2, 47.2204))
sketch8.addConstraint(Sketcher.Constraint("DistanceX", 9, 1, 9, 2, 43.0782))
pocket4 = body.newObject("PartDesign::Pocket", "Pocket003")
pocket4.Profile = sketch8
pocket4.Length = 1
pocket4.Reversed = True

doc.recompute()
